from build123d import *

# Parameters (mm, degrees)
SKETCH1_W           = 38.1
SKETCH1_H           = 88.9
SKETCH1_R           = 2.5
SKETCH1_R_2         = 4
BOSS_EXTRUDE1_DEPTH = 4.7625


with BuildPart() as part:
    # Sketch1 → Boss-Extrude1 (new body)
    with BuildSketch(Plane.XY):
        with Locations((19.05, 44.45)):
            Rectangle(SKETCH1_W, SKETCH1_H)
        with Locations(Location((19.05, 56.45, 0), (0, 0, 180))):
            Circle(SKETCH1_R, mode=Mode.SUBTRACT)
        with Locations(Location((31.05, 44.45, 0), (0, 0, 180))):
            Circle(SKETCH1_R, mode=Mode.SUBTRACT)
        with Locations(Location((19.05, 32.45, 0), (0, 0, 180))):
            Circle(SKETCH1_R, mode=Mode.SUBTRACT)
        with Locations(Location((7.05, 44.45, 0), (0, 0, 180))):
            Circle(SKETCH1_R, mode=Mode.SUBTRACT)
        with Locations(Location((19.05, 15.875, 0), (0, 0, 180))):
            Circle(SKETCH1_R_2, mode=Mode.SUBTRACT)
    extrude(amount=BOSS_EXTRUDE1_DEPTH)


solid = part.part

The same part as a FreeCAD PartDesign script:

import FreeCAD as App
import Part
import Sketcher

V = App.Vector
Q = App.Units.Quantity


def add_polygon(sketch, points):
    """Adds a closed chain of lines whose ends are joined by coincident constraints."""
    first, n = sketch.GeometryCount, len(points)
    for a, b in zip(points, points[1:] + points[:1]):
        sketch.addGeometry(Part.LineSegment(App.Vector(*a, 0), App.Vector(*b, 0)), False)
    for i in range(n):
        sketch.addConstraint(Sketcher.Constraint("Coincident", first + i, 2, first + (i + 1) % n, 1))

doc = App.newDocument("Part")
body = doc.addObject("PartDesign::Body", "Body")

sketch1 = doc.addObject("Sketcher::SketchObject", "Sketch")
body.addObject(sketch1)
sketch1.AttachmentSupport = (doc.XY_Plane, [""])
sketch1.MapMode = "FlatFace"
add_polygon(sketch1, [(0, 88.9), (0, 0), (38.1, 0), (38.1, 88.9)])
sketch1.addGeometry(Part.Circle(V(19.1, 15.9, 0), V(0, 0, 1), 4), False)
sketch1.addGeometry(Part.Circle(V(19.1, 32.5, 0), V(0, 0, 1), 2.5), False)
sketch1.addGeometry(Part.Circle(V(7, 44.5, 0), V(0, 0, 1), 2.5), False)
sketch1.addGeometry(Part.Circle(V(31.1, 44.5, 0), V(0, 0, 1), 2.5), False)
sketch1.addGeometry(Part.Circle(V(19.1, 56.5, 0), V(0, 0, 1), 2.5), False)
sketch1.addConstraint([
    Sketcher.Constraint("Vertical", 0),
    Sketcher.Constraint("Horizontal", 1),
    Sketcher.Constraint("Vertical", 2),
    Sketcher.Constraint("Horizontal", 3),
    Sketcher.Constraint("Coincident", 0, 2, -1, 1),
    Sketcher.Constraint("Equal", 5, 6),
    Sketcher.Constraint("Equal", 6, 7),
    Sketcher.Constraint("Equal", 7, 8),
    Sketcher.Constraint("Horizontal", 6, 3, 7, 3),
    Sketcher.Constraint("Vertical", 4, 3, 5, 3),
    Sketcher.Constraint("Vertical", 5, 3, 8, 3),
    Sketcher.Constraint("DistanceX", 1, 1, 1, 2, Q("1.5 in")),
    Sketcher.Constraint("DistanceY", 0, 2, 0, 1, Q("3.5 in")),
    Sketcher.Constraint("Diameter", 4, Q("8 mm")),
    Sketcher.Constraint("Diameter", 5, Q("5 mm")),
    Sketcher.Constraint("DistanceX", -1, 1, 4, 3, Q("0.75 in")),
    Sketcher.Constraint("DistanceY", -1, 1, 6, 3, Q("1.75 in")),
    Sketcher.Constraint("DistanceY", -1, 1, 4, 3, Q("0.625 in")),
    Sketcher.Constraint("DistanceY", -1, 1, 5, 3, Q("32.45 mm")),
    Sketcher.Constraint("DistanceX", -1, 1, 6, 3, Q("7.05 mm")),
    Sketcher.Constraint("DistanceX", -1, 1, 7, 3, Q("31.05 mm")),
    Sketcher.Constraint("DistanceY", -1, 1, 8, 3, Q("56.45 mm")),
])
pad1 = doc.addObject("PartDesign::Pad", "Pad")
body.addObject(pad1)
pad1.Profile = sketch1
pad1.Length = Q("0.1875 in")

doc.recompute()
